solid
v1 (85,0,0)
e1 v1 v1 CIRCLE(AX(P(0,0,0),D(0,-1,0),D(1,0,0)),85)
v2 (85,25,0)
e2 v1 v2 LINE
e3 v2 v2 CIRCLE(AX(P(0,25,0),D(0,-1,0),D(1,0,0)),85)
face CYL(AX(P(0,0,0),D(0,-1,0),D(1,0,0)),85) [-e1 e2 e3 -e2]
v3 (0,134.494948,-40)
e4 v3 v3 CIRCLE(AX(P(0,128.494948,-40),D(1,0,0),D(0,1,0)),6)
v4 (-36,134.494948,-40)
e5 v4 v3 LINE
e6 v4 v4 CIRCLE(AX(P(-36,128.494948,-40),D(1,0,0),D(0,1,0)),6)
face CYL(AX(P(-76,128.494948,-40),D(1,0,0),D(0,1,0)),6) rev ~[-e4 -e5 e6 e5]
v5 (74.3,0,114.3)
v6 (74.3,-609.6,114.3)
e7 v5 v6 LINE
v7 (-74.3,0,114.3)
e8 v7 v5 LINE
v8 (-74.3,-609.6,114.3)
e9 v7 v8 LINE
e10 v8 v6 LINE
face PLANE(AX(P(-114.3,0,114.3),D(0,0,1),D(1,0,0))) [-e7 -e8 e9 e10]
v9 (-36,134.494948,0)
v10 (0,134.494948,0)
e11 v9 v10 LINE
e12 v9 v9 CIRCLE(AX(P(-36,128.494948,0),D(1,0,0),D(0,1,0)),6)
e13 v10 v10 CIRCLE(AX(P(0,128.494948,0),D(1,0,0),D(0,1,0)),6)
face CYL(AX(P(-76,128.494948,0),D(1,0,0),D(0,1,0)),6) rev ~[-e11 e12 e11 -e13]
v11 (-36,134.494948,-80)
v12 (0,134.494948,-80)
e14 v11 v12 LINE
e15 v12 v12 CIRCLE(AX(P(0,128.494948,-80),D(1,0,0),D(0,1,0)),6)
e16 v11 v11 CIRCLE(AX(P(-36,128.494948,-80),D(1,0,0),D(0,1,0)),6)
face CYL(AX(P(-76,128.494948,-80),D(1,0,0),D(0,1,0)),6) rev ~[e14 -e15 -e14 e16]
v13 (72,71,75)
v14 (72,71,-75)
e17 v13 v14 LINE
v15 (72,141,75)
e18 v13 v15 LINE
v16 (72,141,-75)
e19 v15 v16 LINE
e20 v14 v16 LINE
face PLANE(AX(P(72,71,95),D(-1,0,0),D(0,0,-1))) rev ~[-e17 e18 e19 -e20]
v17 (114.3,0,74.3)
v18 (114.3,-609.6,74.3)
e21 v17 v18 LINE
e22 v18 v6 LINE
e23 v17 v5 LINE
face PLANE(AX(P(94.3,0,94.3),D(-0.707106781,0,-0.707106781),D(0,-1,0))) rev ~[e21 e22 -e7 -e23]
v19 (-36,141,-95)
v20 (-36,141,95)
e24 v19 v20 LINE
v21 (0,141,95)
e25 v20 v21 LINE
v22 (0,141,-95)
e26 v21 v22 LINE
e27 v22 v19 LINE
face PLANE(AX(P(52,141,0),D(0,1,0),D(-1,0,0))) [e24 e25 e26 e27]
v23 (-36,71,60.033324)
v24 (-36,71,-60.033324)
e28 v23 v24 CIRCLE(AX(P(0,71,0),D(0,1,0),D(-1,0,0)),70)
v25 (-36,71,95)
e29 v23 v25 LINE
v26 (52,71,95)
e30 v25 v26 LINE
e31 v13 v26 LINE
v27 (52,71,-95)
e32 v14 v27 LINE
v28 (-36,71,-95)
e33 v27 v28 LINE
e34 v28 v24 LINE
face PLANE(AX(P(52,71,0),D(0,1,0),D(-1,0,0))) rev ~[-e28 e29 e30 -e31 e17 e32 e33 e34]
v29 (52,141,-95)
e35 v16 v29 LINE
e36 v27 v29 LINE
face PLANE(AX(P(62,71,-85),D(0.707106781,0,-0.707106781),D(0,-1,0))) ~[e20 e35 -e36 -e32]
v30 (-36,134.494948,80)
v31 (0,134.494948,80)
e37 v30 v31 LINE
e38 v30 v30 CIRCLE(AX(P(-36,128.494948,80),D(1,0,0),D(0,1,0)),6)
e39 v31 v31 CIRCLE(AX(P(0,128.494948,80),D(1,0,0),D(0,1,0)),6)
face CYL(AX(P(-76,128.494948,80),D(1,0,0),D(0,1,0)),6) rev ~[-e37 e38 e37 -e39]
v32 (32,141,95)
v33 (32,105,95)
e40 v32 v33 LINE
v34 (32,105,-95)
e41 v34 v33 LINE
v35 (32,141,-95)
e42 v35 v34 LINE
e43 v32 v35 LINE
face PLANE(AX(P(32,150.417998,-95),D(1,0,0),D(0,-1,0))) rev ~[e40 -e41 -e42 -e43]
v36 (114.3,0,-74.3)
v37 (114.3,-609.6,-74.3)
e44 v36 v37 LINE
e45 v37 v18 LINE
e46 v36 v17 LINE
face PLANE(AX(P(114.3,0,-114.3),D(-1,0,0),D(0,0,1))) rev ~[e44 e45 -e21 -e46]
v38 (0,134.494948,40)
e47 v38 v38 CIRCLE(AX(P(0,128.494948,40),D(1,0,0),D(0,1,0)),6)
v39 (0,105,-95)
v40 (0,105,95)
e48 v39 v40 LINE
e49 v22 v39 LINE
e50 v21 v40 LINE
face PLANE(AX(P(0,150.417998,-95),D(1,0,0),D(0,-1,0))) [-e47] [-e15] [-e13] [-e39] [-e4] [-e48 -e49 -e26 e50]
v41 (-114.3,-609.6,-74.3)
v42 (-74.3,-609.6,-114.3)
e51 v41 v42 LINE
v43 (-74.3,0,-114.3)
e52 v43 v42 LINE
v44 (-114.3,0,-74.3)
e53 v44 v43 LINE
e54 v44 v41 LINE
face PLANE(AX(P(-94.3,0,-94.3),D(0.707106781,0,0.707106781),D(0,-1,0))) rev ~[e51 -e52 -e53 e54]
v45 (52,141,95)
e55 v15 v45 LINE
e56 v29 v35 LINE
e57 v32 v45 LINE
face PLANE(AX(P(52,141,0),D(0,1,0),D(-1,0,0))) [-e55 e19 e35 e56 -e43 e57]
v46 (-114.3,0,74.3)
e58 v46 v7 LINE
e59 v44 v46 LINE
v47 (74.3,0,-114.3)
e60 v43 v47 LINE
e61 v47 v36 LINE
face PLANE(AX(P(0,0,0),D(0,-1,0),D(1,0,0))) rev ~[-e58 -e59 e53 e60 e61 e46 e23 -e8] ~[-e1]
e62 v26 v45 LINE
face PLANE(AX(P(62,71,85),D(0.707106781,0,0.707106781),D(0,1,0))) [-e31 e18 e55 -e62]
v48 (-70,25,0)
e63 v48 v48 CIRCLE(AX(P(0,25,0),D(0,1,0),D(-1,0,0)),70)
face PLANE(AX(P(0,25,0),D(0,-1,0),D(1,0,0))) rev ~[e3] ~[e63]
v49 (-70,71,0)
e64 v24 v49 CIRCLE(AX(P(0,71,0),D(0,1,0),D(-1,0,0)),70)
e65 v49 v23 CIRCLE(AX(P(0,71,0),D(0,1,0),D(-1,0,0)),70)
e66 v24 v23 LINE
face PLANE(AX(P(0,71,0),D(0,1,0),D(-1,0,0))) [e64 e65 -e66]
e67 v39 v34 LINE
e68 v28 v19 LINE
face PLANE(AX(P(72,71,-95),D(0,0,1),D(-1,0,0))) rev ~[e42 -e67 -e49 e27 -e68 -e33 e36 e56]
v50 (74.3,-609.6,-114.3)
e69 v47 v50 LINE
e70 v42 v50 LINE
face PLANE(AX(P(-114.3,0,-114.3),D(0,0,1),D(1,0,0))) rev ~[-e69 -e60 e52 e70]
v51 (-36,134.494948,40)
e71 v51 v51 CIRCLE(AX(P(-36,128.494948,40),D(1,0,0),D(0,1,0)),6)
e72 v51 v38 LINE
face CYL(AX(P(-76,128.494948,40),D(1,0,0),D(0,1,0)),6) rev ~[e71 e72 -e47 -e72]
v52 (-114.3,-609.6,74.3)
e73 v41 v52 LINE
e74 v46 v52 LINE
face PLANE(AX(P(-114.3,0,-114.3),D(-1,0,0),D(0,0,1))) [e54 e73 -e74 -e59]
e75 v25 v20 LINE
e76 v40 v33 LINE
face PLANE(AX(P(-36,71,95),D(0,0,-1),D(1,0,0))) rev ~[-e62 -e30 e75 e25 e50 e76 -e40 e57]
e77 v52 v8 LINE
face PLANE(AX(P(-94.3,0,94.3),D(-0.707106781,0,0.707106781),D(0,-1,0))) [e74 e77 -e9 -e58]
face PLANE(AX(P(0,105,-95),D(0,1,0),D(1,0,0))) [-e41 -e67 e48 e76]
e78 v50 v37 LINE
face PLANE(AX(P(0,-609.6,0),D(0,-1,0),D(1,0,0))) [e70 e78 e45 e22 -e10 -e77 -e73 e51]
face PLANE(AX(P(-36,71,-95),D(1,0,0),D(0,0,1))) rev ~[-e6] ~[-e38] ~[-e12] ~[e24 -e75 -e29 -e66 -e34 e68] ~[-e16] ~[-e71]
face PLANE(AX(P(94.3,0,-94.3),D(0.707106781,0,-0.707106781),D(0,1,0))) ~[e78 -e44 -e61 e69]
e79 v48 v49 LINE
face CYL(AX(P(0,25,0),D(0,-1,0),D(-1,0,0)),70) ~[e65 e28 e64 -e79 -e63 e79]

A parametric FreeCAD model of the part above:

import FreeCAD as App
import Part
import Sketcher
from FreeCAD import Vector
Q = App.Units.Quantity


def edges_at(feature, points):
    """Names of the edges that pass closest to the given points."""
    edges = feature.Shape.Edges
    near = lambda p: min(range(len(edges)), key=lambda i: edges[i].distToShape(Part.Vertex(*p))[0])
    return sorted({f"Edge{near(p) + 1}" for p in points})

doc = App.newDocument("Part")
body = doc.addObject("PartDesign::Body", "Body")

# Sketch on XZ plane
sketch1 = doc.addObject("Sketcher::SketchObject", "Sketch")
body.addObject(sketch1)
sketch1.AttachmentSupport = (doc.XZ_Plane, [""])
sketch1.MapMode = "FlatFace"
sketch1.addGeometry([
    Part.LineSegment(Vector(-114, 114, 0), Vector(-114, -114, 0)),
    Part.LineSegment(Vector(-114, -114, 0), Vector(114, -114, 0)),
    Part.LineSegment(Vector(114, -114, 0), Vector(114, 114, 0)),
    Part.LineSegment(Vector(114, 114, 0), Vector(-114, 114, 0)),
], False)
sketch1.addConstraint([
    Sketcher.Constraint("Coincident", 0, 2, 1, 1),
    Sketcher.Constraint("Coincident", 1, 2, 2, 1),
    Sketcher.Constraint("Coincident", 2, 2, 3, 1),
    Sketcher.Constraint("Coincident", 3, 2, 0, 1),
    Sketcher.Constraint("Vertical", 0),
    Sketcher.Constraint("Horizontal", 1),
    Sketcher.Constraint("Vertical", 2),
    Sketcher.Constraint("Horizontal", 3),
    Sketcher.Constraint("Symmetric", 0, 2, 2, 2, -1, 1),
    Sketcher.Constraint("Equal", 3, 0),
    Sketcher.Constraint("DistanceX", 1, 1, 1, 2, Q("228.6 mm")),
])
pad1 = doc.addObject("PartDesign::Pad", "Pad")
body.addObject(pad1)
pad1.Profile = sketch1
pad1.Length = 609.6
doc.recompute()

chamfer = doc.addObject("PartDesign::Chamfer", "Chamfer")
body.addObject(chamfer)
chamfer.Base = (pad1, edges_at(pad1, [
    (114.3, -304.8, 114.3),
    (-114.3, -304.8, 114.3),
    (-114.3, -304.8, -114.3),
    (114.3, -304.8, -114.3),
]))
chamfer.Size = 40

# Sketch on XZ plane
sketch2 = doc.addObject("Sketcher::SketchObject", "Sketch001")
body.addObject(sketch2)
sketch2.AttachmentSupport = (doc.XZ_Plane, [""])
sketch2.MapMode = "FlatFace"
sketch2.addGeometry(Part.Circle(Vector(0, 0, 0), Vector(0, 0, 1), 85), False)
sketch2.addConstraint([
    Sketcher.Constraint("Coincident", 0, 3, -1, 1),
    Sketcher.Constraint("Diameter", 0, Q("170 mm")),
])
pad2 = doc.addObject("PartDesign::Pad", "Pad001")
body.addObject(pad2)
pad2.Profile = sketch2
pad2.Length = 25
pad2.Reversed = True

# Sketch on XZ plane
sketch3 = doc.addObject("Sketcher::SketchObject", "Sketch002")
body.addObject(sketch3)
sketch3.AttachmentSupport = (doc.XZ_Plane, [""])
sketch3.MapMode = "FlatFace"
sketch3.AttachmentOffset = App.Placement(Vector(0, 0, -25), App.Rotation())
sketch3.addGeometry(Part.Circle(Vector(0, 0, 0), Vector(0, 0, 1), 70), False)
sketch3.addConstraint([
    Sketcher.Constraint("Coincident", 0, 3, -1, 1),
    Sketcher.Constraint("Diameter", 0, Q("140 mm")),
])
pad3 = doc.addObject("PartDesign::Pad", "Pad002")
body.addObject(pad3)
pad3.Profile = sketch3
pad3.Length = 46
pad3.Reversed = True

# Sketch on XZ plane
sketch4 = doc.addObject("Sketcher::SketchObject", "Sketch003")
body.addObject(sketch4)
sketch4.AttachmentSupport = (doc.XZ_Plane, [""])
sketch4.MapMode = "FlatFace"
sketch4.AttachmentOffset = App.Placement(Vector(0, 0, -71), App.Rotation())
sketch4.addGeometry([
    Part.LineSegment(Vector(72, 95, 0), Vector(72, -95, 0)),
    Part.LineSegment(Vector(72, -95, 0), Vector(-36, -95, 0)),
    Part.LineSegment(Vector(-36, -95, 0), Vector(-36, 95, 0)),
    Part.LineSegment(Vector(-36, 95, 0), Vector(72, 95, 0)),
], False)
sketch4.addConstraint([
    Sketcher.Constraint("Coincident", 0, 2, 1, 1),
    Sketcher.Constraint("Coincident", 1, 2, 2, 1),
    Sketcher.Constraint("Coincident", 2, 2, 3, 1),
    Sketcher.Constraint("Coincident", 3, 2, 0, 1),
    Sketcher.Constraint("Vertical", 0),
    Sketcher.Constraint("Horizontal", 1),
    Sketcher.Constraint("Vertical", 2),
    Sketcher.Constraint("Horizontal", 3),
    Sketcher.Constraint("DistanceX", 1, 2, 1, 1, Q("108 mm")),
    Sketcher.Constraint("DistanceY", 0, 2, 0, 1, Q("190 mm")),
    Sketcher.Constraint("DistanceX", -1, 1, 0, 2, Q("72 mm")),
    Sketcher.Constraint("DistanceY", 0, 2, -1, 1, Q("95 mm")),
])
pad4 = doc.addObject("PartDesign::Pad", "Pad003")
body.addObject(pad4)
pad4.Profile = sketch4
pad4.Length = 70
pad4.Reversed = True

# Sketch on XY plane
sketch5 = doc.addObject("Sketcher::SketchObject", "Sketch004")
body.addObject(sketch5)
sketch5.AttachmentSupport = (doc.XY_Plane, [""])
sketch5.MapMode = "FlatFace"
sketch5.AttachmentOffset = App.Placement(Vector(0, 0, -95), App.Rotation())
sketch5.addGeometry([
    Part.LineSegment(Vector(0, 105, 0), Vector(0, 150, 0)),
    Part.LineSegment(Vector(0, 150, 0), Vector(32, 150, 0)),
    Part.LineSegment(Vector(32, 150, 0), Vector(32, 105, 0)),
    Part.LineSegment(Vector(32, 105, 0), Vector(0, 105, 0)),
], False)
sketch5.addConstraint([
    Sketcher.Constraint("Coincident", 0, 2, 1, 1),
    Sketcher.Constraint("Coincident", 1, 2, 2, 1),
    Sketcher.Constraint("Coincident", 2, 2, 3, 1),
    Sketcher.Constraint("Coincident", 3, 2, 0, 1),
    Sketcher.Constraint("Vertical", 0),
    Sketcher.Constraint("Horizontal", 1),
    Sketcher.Constraint("Vertical", 2),
    Sketcher.Constraint("Horizontal", 3),
    Sketcher.Constraint("PointOnObject", 0, 2, -2),
    Sketcher.Constraint("DistanceX", 1, 1, 1, 2, Q("32 mm")),
    Sketcher.Constraint("DistanceY", -1, 1, 2, 2, Q("105 mm")),
    Sketcher.Constraint("DistanceY", 0, 1, 0, 2, Q("45.417998 mm")),
])
pocket1 = doc.addObject("PartDesign::Pocket", "Pocket")
body.addObject(pocket1)
pocket1.Profile = sketch5
pocket1.Length = 252
pocket1.Reversed = True
doc.recompute()

chamfer2 = doc.addObject("PartDesign::Chamfer", "Chamfer001")
body.addObject(chamfer2)
chamfer2.Base = (pocket1, edges_at(pocket1, [(72, 106, -95), (72, 106, 95)]))
chamfer2.Size = 20

# Sketch on YZ plane
sketch6 = doc.addObject("Sketcher::SketchObject", "Sketch005")
body.addObject(sketch6)
sketch6.AttachmentSupport = (doc.YZ_Plane, [""])
sketch6.MapMode = "FlatFace"
sketch6.AttachmentOffset = App.Placement(Vector(0, 0, -36), App.Rotation())
sketch6.addGeometry([
    Part.Circle(Vector(128, 80, 0), Vector(0, 0, 1), 6),  # 0
    Part.Circle(Vector(128, 40, 0), Vector(0, 0, 1), 6),  # 1
    Part.Circle(Vector(128, 0, 0), Vector(0, 0, 1), 6),  # 2
    Part.Circle(Vector(128, -40, 0), Vector(0, 0, 1), 6),  # 3
    Part.Circle(Vector(128, -80, 0), Vector(0, 0, 1), 6),  # 4
], False)
sketch6.addConstraint([
    Sketcher.Constraint("Equal", 0, 1),
    Sketcher.Constraint("Equal", 1, 2),
    Sketcher.Constraint("Equal", 2, 3),
    Sketcher.Constraint("Equal", 3, 4),
    Sketcher.Constraint("Symmetric", 1, 3, 3, 3, -1),
    Sketcher.Constraint("Symmetric", 0, 3, 4, 3, -1),
    Sketcher.Constraint("PointOnObject", 2, 3, -1),
    Sketcher.Constraint("Vertical", 0, 3, 1, 3),
    Sketcher.Constraint("Vertical", 1, 3, 2, 3),
    Sketcher.Constraint("Diameter", 0, Q("12 mm")),
    Sketcher.Constraint("DistanceY", -1, 1, 0, 3, Q("80 mm")),
    Sketcher.Constraint("DistanceY", -1, 1, 1, 3, Q("40 mm")),
    Sketcher.Constraint("DistanceX", -1, 1, 0, 3, Q("128.494948 mm")),
])
doc.recompute()
hole = doc.addObject("PartDesign::Hole", "Hole")
body.addObject(hole)
hole.Profile = sketch6
hole.ThreadType = "None"
hole.Diameter = 12
hole.DepthType = "Dimension"
hole.Depth = 40
hole.DrillPoint = "Flat"
hole.Reversed = True

doc.recompute()
